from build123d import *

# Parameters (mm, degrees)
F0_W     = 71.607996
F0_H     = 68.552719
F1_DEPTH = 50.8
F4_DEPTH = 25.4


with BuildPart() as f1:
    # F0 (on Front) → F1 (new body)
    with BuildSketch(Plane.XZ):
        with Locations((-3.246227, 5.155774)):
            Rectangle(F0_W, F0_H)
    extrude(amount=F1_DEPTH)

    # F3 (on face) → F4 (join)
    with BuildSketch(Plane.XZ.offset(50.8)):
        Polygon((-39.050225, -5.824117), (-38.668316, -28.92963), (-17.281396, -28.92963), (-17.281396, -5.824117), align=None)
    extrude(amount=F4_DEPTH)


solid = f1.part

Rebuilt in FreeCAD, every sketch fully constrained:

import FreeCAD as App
import Part
import Sketcher
from FreeCAD import Vector
Q = App.Units.Quantity

doc = App.newDocument("Part")
body = doc.addObject("PartDesign::Body", "Body")

sketch1 = doc.addObject("Sketcher::SketchObject", "Sketch")
body.addObject(sketch1)
sketch1.AttachmentSupport = (doc.XZ_Plane, [""])
sketch1.MapMode = "FlatFace"
sketch1.addGeometry([
    Part.LineSegment(Vector(-39.050225, 39.432133, 0), Vector(-39.050225, -29.120586, 0)),
    Part.LineSegment(Vector(-39.050225, -29.120586, 0), Vector(32.557771, -29.120586, 0)),
    Part.LineSegment(Vector(32.557771, -29.120586, 0), Vector(32.557771, 39.432133, 0)),
    Part.LineSegment(Vector(32.557771, 39.432133, 0), Vector(-39.050225, 39.432133, 0)),
], False)
sketch1.addConstraint([
    Sketcher.Constraint("Coincident", 0, 2, 1, 1),
    Sketcher.Constraint("Coincident", 1, 2, 2, 1),
    Sketcher.Constraint("Coincident", 2, 2, 3, 1),
    Sketcher.Constraint("Coincident", 3, 2, 0, 1),
    Sketcher.Constraint("Vertical", 0),
    Sketcher.Constraint("Horizontal", 1),
    Sketcher.Constraint("Vertical", 2),
    Sketcher.Constraint("Horizontal", 3),
    Sketcher.Constraint("DistanceY", 0, 2, 0, 1, 68.552719),
    Sketcher.Constraint("DistanceX", 1, 1, 1, 2, 71.607996),
    Sketcher.Constraint("DistanceX", -1, 1, 1, 2, 32.557771),
    Sketcher.Constraint("DistanceY", 0, 2, -1, 1, 29.120586),
])
pad1 = doc.addObject("PartDesign::Pad", "Pad")
body.addObject(pad1)
pad1.Profile = sketch1
pad1.Length = Q("2 in")

sketch2 = doc.addObject("Sketcher::SketchObject", "Sketch001")
body.addObject(sketch2)
sketch2.AttachmentSupport = (doc.XZ_Plane, [""])
sketch2.MapMode = "FlatFace"
sketch2.AttachmentOffset = App.Placement(Vector(0, 0, 2 * 25.4), App.Rotation())
sketch2.addGeometry([
    Part.LineSegment(Vector(-39.050225, -5.824117, 0), Vector(-38.668316, -28.92963, 0)),
    Part.LineSegment(Vector(-38.668316, -28.92963, 0), Vector(-17.281396, -28.92963, 0)),
    Part.LineSegment(Vector(-17.281396, -28.92963, 0), Vector(-17.281396, -5.824117, 0)),
    Part.LineSegment(Vector(-17.281396, -5.824117, 0), Vector(-39.050225, -5.824117, 0)),
], False)
sketch2.addConstraint([
    Sketcher.Constraint("Coincident", 0, 2, 1, 1),
    Sketcher.Constraint("Coincident", 1, 2, 2, 1),
    Sketcher.Constraint("Coincident", 2, 2, 3, 1),
    Sketcher.Constraint("Coincident", 3, 2, 0, 1),
    Sketcher.Constraint("Horizontal", 1),
    Sketcher.Constraint("Vertical", 2),
    Sketcher.Constraint("Horizontal", 3),
    Sketcher.Constraint("DistanceX", 1, 1, 1, 2, 21.38692),
    Sketcher.Constraint("DistanceX", 3, 2, 3, 1, 21.768829),
    Sketcher.Constraint("Distance", 0, 23.108669),
    Sketcher.Constraint("DistanceY", 0, 2, -1, 1, 28.92963),
    Sketcher.Constraint("DistanceX", 0, 2, -1, 1, 38.668316),
])
pad2 = doc.addObject("PartDesign::Pad", "Pad001")
body.addObject(pad2)
pad2.Profile = sketch2
pad2.Length = Q("1 in")

doc.recompute()
